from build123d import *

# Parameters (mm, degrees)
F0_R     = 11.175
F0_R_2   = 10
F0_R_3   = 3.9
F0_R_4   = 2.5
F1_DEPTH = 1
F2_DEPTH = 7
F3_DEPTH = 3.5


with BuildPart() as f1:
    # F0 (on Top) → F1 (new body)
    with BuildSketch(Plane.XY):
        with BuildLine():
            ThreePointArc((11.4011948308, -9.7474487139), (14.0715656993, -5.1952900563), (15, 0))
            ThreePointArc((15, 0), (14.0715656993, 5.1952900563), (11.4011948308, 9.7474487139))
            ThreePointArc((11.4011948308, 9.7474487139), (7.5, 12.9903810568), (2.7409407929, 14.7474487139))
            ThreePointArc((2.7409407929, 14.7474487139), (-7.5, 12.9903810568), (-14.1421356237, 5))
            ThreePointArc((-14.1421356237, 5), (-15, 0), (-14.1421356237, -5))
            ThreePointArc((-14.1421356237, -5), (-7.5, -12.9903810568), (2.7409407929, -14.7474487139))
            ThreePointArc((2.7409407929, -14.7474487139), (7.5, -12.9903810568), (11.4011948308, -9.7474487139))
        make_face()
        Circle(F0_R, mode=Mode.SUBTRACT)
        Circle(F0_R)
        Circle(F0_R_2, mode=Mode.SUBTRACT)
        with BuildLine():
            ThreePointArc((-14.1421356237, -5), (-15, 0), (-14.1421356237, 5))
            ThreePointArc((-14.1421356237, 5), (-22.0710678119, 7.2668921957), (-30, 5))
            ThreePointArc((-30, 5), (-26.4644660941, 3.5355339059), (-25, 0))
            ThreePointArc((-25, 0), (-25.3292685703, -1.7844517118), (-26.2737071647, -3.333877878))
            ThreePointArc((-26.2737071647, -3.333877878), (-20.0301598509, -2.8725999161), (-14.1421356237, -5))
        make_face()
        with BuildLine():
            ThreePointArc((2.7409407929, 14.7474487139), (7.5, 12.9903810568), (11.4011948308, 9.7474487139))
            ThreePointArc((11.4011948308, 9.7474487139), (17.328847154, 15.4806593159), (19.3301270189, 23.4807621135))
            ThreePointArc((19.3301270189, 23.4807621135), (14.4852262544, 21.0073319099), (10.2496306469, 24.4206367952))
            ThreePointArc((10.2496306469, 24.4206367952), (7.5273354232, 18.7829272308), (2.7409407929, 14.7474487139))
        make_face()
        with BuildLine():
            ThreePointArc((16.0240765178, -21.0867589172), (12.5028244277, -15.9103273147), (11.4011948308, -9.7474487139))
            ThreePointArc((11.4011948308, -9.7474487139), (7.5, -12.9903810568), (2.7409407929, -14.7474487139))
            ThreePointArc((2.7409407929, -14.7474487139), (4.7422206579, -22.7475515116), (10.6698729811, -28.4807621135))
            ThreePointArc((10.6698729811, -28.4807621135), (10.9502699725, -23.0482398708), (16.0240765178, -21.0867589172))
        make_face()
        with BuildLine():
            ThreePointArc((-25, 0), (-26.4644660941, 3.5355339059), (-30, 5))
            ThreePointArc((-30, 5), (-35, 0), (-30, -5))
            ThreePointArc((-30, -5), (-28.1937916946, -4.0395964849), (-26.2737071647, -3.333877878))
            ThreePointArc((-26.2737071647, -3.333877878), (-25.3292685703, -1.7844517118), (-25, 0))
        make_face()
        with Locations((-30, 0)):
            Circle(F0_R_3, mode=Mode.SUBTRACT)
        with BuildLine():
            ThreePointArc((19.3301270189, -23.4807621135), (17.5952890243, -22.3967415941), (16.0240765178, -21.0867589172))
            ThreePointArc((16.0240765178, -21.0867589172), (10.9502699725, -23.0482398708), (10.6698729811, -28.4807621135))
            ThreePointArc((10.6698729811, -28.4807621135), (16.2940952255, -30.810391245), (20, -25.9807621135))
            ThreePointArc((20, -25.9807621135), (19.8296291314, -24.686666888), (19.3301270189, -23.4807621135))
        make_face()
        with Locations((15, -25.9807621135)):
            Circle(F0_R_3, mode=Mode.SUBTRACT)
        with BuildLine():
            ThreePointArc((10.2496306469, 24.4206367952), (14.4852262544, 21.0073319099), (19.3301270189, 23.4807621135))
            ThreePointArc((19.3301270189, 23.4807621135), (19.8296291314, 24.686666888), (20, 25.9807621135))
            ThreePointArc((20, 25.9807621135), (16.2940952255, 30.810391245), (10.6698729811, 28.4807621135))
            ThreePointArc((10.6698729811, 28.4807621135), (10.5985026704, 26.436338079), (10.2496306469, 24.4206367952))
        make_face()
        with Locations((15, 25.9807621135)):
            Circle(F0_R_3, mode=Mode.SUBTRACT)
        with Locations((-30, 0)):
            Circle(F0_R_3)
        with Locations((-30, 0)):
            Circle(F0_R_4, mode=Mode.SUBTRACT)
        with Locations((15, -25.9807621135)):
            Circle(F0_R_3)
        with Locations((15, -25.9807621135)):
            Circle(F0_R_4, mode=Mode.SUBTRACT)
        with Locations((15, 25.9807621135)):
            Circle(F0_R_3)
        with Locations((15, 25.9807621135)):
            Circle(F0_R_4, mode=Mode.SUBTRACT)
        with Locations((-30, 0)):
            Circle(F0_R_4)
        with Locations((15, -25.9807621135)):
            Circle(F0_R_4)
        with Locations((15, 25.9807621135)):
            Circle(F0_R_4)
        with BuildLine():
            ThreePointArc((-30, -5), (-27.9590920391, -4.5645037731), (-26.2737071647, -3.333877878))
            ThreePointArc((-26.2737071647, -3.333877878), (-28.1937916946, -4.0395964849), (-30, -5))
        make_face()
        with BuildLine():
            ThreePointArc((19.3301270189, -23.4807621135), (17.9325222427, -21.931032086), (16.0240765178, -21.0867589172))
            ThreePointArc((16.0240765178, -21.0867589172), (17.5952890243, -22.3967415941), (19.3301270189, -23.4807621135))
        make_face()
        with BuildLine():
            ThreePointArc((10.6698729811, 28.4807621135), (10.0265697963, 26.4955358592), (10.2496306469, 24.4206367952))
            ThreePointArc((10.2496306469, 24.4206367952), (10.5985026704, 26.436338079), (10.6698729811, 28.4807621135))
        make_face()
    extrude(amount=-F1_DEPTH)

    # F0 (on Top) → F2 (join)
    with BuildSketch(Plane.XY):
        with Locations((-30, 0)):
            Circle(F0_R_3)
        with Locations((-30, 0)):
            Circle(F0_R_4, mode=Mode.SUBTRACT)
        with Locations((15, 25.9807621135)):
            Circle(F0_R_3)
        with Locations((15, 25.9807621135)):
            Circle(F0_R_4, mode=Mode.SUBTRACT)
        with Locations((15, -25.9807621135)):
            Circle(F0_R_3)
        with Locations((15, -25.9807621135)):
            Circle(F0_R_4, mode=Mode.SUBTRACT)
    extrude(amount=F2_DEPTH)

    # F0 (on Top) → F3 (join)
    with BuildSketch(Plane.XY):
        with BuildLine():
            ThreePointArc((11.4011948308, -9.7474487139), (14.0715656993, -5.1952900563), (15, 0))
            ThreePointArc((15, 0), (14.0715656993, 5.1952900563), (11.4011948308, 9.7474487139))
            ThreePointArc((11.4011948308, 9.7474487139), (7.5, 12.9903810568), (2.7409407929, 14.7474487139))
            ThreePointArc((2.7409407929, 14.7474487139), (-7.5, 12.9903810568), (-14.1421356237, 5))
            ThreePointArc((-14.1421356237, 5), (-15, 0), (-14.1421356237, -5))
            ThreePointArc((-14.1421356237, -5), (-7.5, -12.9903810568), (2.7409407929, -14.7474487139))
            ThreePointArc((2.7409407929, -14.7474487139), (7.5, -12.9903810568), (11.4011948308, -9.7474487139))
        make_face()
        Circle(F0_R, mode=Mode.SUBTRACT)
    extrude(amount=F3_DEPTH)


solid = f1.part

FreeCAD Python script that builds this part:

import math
import FreeCAD as App
import Part
import Sketcher
from FreeCAD import Vector

doc = App.newDocument("Part")
body = doc.addObject("PartDesign::Body", "Body")

# Sketch on XY plane
sketch1 = body.newObject("Sketcher::SketchObject", "Sketch")
sketch1.AttachmentSupport = (doc.getObject("XY_Plane"), [""])
sketch1.MapMode = "FlatFace"
sketch1.addGeometry([
    Part.ArcOfCircle(Part.Circle(Vector(0, 0, 0), Vector(0, 0, 1), 15), math.radians(0), math.radians(40.528779)),  # 0
    Part.ArcOfCircle(Part.Circle(Vector(4.338466, 22.980659, 0), Vector(0, 0, 1), 15), math.radians(-61.910606), math.radians(1.910606)),  # 1
    Part.ArcOfCircle(Part.Circle(Vector(15, 25.980762, 0), Vector(0, 0, 1), 5), math.radians(-30), math.radians(0)),  # 2
    Part.ArcOfCircle(Part.Circle(Vector(15, 25.980762, 0), Vector(0, 0, 1), 5), math.radians(0), math.radians(150)),  # 3
    Part.ArcOfCircle(Part.Circle(Vector(15, 25.980762, 0), Vector(0, 0, 1), 5), math.radians(150), math.radians(198.181313)),  # 4
    Part.ArcOfCircle(Part.Circle(Vector(-4.321788, 27.980659, 0), Vector(0, 0, 1), 15), math.radians(-61.910606), math.radians(-13.729293)),  # 5
    Part.ArcOfCircle(Part.Circle(Vector(0, 0, 0), Vector(0, 0, 1), 15), math.radians(79.471221), math.radians(160.528779)),  # 6
    Part.ArcOfCircle(Part.Circle(Vector(-22.071068, -7.733108, 0), Vector(0, 0, 1), 15), math.radians(58.089394), math.radians(121.910606)),  # 7
    Part.ArcOfCircle(Part.Circle(Vector(-30, 0, 0), Vector(0, 0, 1), 5), math.radians(90), math.radians(270)),  # 8
    Part.ArcOfCircle(Part.Circle(Vector(-30, 0, 0), Vector(0, 0, 1), 5), math.radians(-90), math.radians(-41.818687)),  # 9
    Part.ArcOfCircle(Part.Circle(Vector(-22.071068, -17.733108, 0), Vector(0, 0, 1), 15), math.radians(58.089394), math.radians(106.270707)),  # 10
    Part.ArcOfCircle(Part.Circle(Vector(0, 0, 0), Vector(0, 0, 1), 15), math.radians(-160.528779), math.radians(-79.471221)),  # 11
    Part.ArcOfCircle(Part.Circle(Vector(17.732602, -15.247552, 0), Vector(0, 0, 1), 15), math.radians(178.089394), math.radians(241.910606)),  # 12
    Part.ArcOfCircle(Part.Circle(Vector(15, -25.980762, 0), Vector(0, 0, 1), 5), math.radians(-150), math.radians(0)),  # 13
    Part.ArcOfCircle(Part.Circle(Vector(15, -25.980762, 0), Vector(0, 0, 1), 5), math.radians(0), math.radians(30)),  # 14
    Part.ArcOfCircle(Part.Circle(Vector(15, -25.980762, 0), Vector(0, 0, 1), 5), math.radians(30), math.radians(78.181313)),  # 15
    Part.ArcOfCircle(Part.Circle(Vector(26.392856, -10.247552, 0), Vector(0, 0, 1), 15), math.radians(178.089394), math.radians(226.270707)),  # 16
    Part.ArcOfCircle(Part.Circle(Vector(0, 0, 0), Vector(0, 0, 1), 15), math.radians(-40.528779), math.radians(0)),  # 17
    Part.Circle(Vector(0, 0, 0), Vector(0, 0, 1), 10),  # 18
], False)
sketch1.addConstraint([
    Sketcher.Constraint("Coincident", 0, 2, 1, 1),
    Sketcher.Constraint("Coincident", 1, 2, 2, 1),
    Sketcher.Constraint("Coincident", 2, 2, 3, 1),
    Sketcher.Constraint("Coincident", 3, 2, 4, 1),
    Sketcher.Constraint("Coincident", 4, 2, 5, 2),
    Sketcher.Constraint("Coincident", 5, 1, 6, 1),
    Sketcher.Constraint("Coincident", 6, 2, 7, 1),
    Sketcher.Constraint("Coincident", 7, 2, 8, 1),
    Sketcher.Constraint("Coincident", 8, 2, 9, 1),
    Sketcher.Constraint("Coincident", 9, 2, 10, 2),
    Sketcher.Constraint("Coincident", 10, 1, 11, 1),
    Sketcher.Constraint("Coincident", 11, 2, 12, 1),
    Sketcher.Constraint("Coincident", 12, 2, 13, 1),
    Sketcher.Constraint("Coincident", 13, 2, 14, 1),
    Sketcher.Constraint("Coincident", 14, 2, 15, 1),
    Sketcher.Constraint("Coincident", 15, 2, 16, 2),
    Sketcher.Constraint("Coincident", 16, 1, 17, 1),
    Sketcher.Constraint("Coincident", 17, 2, 0, 1),
    Sketcher.Constraint("Coincident", 0, 3, -1, 1),
    Sketcher.Constraint("Coincident", 6, 3, -1, 1),
    Sketcher.Constraint("Coincident", 11, 3, -1, 1),
    Sketcher.Constraint("Coincident", 17, 3, -1, 1),
    Sketcher.Constraint("Coincident", 18, 3, -1, 1),
    Sketcher.Constraint("Coincident", 3, 3, 2, 3),
    Sketcher.Constraint("Coincident", 4, 3, 2, 3),
    Sketcher.Constraint("Coincident", 9, 3, 8, 3),
    Sketcher.Constraint("Coincident", 14, 3, 13, 3),
    Sketcher.Constraint("Coincident", 15, 3, 13, 3),
    Sketcher.Constraint("PointOnObject", 8, 3, -1),
    Sketcher.Constraint("PointOnObject", 17, 2, -1),
    Sketcher.Constraint("Diameter", 18, 20.0),
    Sketcher.Constraint("Radius", 0, 15.0),
    Sketcher.Constraint("Radius", 1, 15.0),
    Sketcher.Constraint("Radius", 2, 5.0),
    Sketcher.Constraint("Radius", 5, 15.0),
    Sketcher.Constraint("Radius", 6, 15.0),
    Sketcher.Constraint("Radius", 7, 15.0),
    Sketcher.Constraint("Radius", 8, 5.0),
    Sketcher.Constraint("Radius", 10, 15.0),
    Sketcher.Constraint("Radius", 11, 15.0),
    Sketcher.Constraint("Radius", 12, 15.0),
    Sketcher.Constraint("Radius", 13, 5.0),
    Sketcher.Constraint("Radius", 16, 15.0),
    Sketcher.Constraint("DistanceX", -1, 1, 2, 3, 15.0),
    Sketcher.Constraint("DistanceX", 8, 3, -1, 1, 30.0),
    Sketcher.Constraint("DistanceX", -1, 1, 13, 3, 15.0),
    Sketcher.Constraint("DistanceY", -1, 1, 6, 2, 5.0),
    Sketcher.Constraint("DistanceX", 7, 2, -1, 1, 30.0),
    Sketcher.Constraint("DistanceX", 8, 2, -1, 1, 30.0),
    Sketcher.Constraint("DistanceY", 10, 1, -1, 1, 5.0),
    Sketcher.Constraint("DistanceY", 1, 3, 5, 3, 5.0),
    Sketcher.Constraint("DistanceY", 10, 3, 7, 3, 10.0),
    Sketcher.Constraint("DistanceY", 12, 3, 16, 3, 5.0),
    Sketcher.Constraint("DistanceY", 0, 2, 5, 1, 5.0),
    Sketcher.Constraint("DistanceY", 11, 2, 16, 1, 5.0),
    Sketcher.Constraint("DistanceY", 1, 2, 3, 3, 2.5),
    Sketcher.Constraint("DistanceY", 1, 2, 2, 2, 2.5),
    Sketcher.Constraint("DistanceY", 2, 3, 3, 2, 2.5),
    Sketcher.Constraint("DistanceY", 12, 2, 14, 3, 2.5),
    Sketcher.Constraint("DistanceY", 12, 2, 13, 2, 2.5),
    Sketcher.Constraint("DistanceY", 13, 2, 14, 2, 2.5),
    Sketcher.Constraint("DistanceX", -1, 1, 12, 3, 17.732602),
    Sketcher.Constraint("DistanceY", -1, 1, 1, 3, 22.980659),
    Sketcher.Constraint("DistanceY", 12, 3, -1, 1, 15.247552),
    Sketcher.Constraint("DistanceX", -1, 1, 4, 2, 10.249631),
])
pad1 = body.newObject("PartDesign::Pad", "Pad")
pad1.Profile = sketch1
pad1.Length = 1
pad1.Reversed = True

# Sketch on XY plane
sketch2 = body.newObject("Sketcher::SketchObject", "Sketch001")
sketch2.AttachmentSupport = (doc.getObject("XY_Plane"), [""])
sketch2.MapMode = "FlatFace"
sketch2.addGeometry([
    Part.Circle(Vector(-30, 0, 0), Vector(0, 0, 1), 3.9),  # 0
    Part.Circle(Vector(-30, 0, 0), Vector(0, 0, 1), 2.5),  # 1
    Part.Circle(Vector(15, 25.980762, 0), Vector(0, 0, 1), 3.9),  # 2
    Part.Circle(Vector(15, 25.980762, 0), Vector(0, 0, 1), 2.5),  # 3
    Part.Circle(Vector(15, -25.980762, 0), Vector(0, 0, 1), 3.9),  # 4
    Part.Circle(Vector(15, -25.980762, 0), Vector(0, 0, 1), 2.5),  # 5
], False)
sketch2.addConstraint([
    Sketcher.Constraint("Coincident", 1, 3, 0, 3),
    Sketcher.Constraint("Coincident", 3, 3, 2, 3),
    Sketcher.Constraint("Coincident", 5, 3, 4, 3),
    Sketcher.Constraint("Equal", 0, 2),
    Sketcher.Constraint("Equal", 1, 3),
    Sketcher.Constraint("Equal", 2, 4),
    Sketcher.Constraint("Equal", 3, 5),
    Sketcher.Constraint("Symmetric", 2, 3, 4, 3, -1),
    Sketcher.Constraint("PointOnObject", 0, 3, -1),
    Sketcher.Constraint("Diameter", 1, 5.0),
    Sketcher.Constraint("Diameter", 0, 7.8),
    Sketcher.Constraint("DistanceX", 0, 3, -1, 1, 30.0),
    Sketcher.Constraint("DistanceX", -1, 1, 2, 3, 15.0),
    Sketcher.Constraint("DistanceY", -1, 1, 2, 3, 25.980762),
])
pad2 = body.newObject("PartDesign::Pad", "Pad001")
pad2.Profile = sketch2
pad2.Length = 7

# Sketch on XY plane
sketch3 = body.newObject("Sketcher::SketchObject", "Sketch002")
sketch3.AttachmentSupport = (doc.getObject("XY_Plane"), [""])
sketch3.MapMode = "FlatFace"
sketch3.addGeometry([
    Part.ArcOfCircle(Part.Circle(Vector(0, 0, 0), Vector(0, 0, 1), 15), math.radians(0), math.radians(79.471221)),  # 0
    Part.ArcOfCircle(Part.Circle(Vector(0, 0, 0), Vector(0, 0, 1), 15), math.radians(79.471221), math.radians(160.528779)),  # 1
    Part.ArcOfCircle(Part.Circle(Vector(0, 0, 0), Vector(0, 0, 1), 15), math.radians(160.528779), math.radians(199.471221)),  # 2
    Part.ArcOfCircle(Part.Circle(Vector(0, 0, 0), Vector(0, 0, 1), 15), math.radians(-160.528779), math.radians(-79.471221)),  # 3
    Part.ArcOfCircle(Part.Circle(Vector(0, 0, 0), Vector(0, 0, 1), 15), math.radians(-79.471221), math.radians(0)),  # 4
    Part.Circle(Vector(0, 0, 0), Vector(0, 0, 1), 11.175),  # 5
], False)
sketch3.addConstraint([
    Sketcher.Constraint("Tangent", 0, 2, 1, 1),
    Sketcher.Constraint("Tangent", 1, 2, 2, 1),
    Sketcher.Constraint("Tangent", 2, 2, 3, 1),
    Sketcher.Constraint("Tangent", 3, 2, 4, 1),
    Sketcher.Constraint("Tangent", 4, 2, 0, 1),
    Sketcher.Constraint("Coincident", 0, 3, -1, 1),
    Sketcher.Constraint("Coincident", 2, 3, -1, 1),
    Sketcher.Constraint("Coincident", 5, 3, -1, 1),
    Sketcher.Constraint("PointOnObject", 4, 2, -1),
    Sketcher.Constraint("Vertical", 1, 2, 2, 2),
    Sketcher.Constraint("Vertical", 0, 2, 3, 2),
    Sketcher.Constraint("Radius", 0, 15.0),
    Sketcher.Constraint("Diameter", 5, 22.35),
    Sketcher.Constraint("DistanceY", -1, 1, 1, 2, 5.0),
    Sketcher.Constraint("DistanceX", -1, 1, 0, 2, 2.740941),
])
pad3 = body.newObject("PartDesign::Pad", "Pad002")
pad3.Profile = sketch3
pad3.Length = 3.5

doc.recompute()
